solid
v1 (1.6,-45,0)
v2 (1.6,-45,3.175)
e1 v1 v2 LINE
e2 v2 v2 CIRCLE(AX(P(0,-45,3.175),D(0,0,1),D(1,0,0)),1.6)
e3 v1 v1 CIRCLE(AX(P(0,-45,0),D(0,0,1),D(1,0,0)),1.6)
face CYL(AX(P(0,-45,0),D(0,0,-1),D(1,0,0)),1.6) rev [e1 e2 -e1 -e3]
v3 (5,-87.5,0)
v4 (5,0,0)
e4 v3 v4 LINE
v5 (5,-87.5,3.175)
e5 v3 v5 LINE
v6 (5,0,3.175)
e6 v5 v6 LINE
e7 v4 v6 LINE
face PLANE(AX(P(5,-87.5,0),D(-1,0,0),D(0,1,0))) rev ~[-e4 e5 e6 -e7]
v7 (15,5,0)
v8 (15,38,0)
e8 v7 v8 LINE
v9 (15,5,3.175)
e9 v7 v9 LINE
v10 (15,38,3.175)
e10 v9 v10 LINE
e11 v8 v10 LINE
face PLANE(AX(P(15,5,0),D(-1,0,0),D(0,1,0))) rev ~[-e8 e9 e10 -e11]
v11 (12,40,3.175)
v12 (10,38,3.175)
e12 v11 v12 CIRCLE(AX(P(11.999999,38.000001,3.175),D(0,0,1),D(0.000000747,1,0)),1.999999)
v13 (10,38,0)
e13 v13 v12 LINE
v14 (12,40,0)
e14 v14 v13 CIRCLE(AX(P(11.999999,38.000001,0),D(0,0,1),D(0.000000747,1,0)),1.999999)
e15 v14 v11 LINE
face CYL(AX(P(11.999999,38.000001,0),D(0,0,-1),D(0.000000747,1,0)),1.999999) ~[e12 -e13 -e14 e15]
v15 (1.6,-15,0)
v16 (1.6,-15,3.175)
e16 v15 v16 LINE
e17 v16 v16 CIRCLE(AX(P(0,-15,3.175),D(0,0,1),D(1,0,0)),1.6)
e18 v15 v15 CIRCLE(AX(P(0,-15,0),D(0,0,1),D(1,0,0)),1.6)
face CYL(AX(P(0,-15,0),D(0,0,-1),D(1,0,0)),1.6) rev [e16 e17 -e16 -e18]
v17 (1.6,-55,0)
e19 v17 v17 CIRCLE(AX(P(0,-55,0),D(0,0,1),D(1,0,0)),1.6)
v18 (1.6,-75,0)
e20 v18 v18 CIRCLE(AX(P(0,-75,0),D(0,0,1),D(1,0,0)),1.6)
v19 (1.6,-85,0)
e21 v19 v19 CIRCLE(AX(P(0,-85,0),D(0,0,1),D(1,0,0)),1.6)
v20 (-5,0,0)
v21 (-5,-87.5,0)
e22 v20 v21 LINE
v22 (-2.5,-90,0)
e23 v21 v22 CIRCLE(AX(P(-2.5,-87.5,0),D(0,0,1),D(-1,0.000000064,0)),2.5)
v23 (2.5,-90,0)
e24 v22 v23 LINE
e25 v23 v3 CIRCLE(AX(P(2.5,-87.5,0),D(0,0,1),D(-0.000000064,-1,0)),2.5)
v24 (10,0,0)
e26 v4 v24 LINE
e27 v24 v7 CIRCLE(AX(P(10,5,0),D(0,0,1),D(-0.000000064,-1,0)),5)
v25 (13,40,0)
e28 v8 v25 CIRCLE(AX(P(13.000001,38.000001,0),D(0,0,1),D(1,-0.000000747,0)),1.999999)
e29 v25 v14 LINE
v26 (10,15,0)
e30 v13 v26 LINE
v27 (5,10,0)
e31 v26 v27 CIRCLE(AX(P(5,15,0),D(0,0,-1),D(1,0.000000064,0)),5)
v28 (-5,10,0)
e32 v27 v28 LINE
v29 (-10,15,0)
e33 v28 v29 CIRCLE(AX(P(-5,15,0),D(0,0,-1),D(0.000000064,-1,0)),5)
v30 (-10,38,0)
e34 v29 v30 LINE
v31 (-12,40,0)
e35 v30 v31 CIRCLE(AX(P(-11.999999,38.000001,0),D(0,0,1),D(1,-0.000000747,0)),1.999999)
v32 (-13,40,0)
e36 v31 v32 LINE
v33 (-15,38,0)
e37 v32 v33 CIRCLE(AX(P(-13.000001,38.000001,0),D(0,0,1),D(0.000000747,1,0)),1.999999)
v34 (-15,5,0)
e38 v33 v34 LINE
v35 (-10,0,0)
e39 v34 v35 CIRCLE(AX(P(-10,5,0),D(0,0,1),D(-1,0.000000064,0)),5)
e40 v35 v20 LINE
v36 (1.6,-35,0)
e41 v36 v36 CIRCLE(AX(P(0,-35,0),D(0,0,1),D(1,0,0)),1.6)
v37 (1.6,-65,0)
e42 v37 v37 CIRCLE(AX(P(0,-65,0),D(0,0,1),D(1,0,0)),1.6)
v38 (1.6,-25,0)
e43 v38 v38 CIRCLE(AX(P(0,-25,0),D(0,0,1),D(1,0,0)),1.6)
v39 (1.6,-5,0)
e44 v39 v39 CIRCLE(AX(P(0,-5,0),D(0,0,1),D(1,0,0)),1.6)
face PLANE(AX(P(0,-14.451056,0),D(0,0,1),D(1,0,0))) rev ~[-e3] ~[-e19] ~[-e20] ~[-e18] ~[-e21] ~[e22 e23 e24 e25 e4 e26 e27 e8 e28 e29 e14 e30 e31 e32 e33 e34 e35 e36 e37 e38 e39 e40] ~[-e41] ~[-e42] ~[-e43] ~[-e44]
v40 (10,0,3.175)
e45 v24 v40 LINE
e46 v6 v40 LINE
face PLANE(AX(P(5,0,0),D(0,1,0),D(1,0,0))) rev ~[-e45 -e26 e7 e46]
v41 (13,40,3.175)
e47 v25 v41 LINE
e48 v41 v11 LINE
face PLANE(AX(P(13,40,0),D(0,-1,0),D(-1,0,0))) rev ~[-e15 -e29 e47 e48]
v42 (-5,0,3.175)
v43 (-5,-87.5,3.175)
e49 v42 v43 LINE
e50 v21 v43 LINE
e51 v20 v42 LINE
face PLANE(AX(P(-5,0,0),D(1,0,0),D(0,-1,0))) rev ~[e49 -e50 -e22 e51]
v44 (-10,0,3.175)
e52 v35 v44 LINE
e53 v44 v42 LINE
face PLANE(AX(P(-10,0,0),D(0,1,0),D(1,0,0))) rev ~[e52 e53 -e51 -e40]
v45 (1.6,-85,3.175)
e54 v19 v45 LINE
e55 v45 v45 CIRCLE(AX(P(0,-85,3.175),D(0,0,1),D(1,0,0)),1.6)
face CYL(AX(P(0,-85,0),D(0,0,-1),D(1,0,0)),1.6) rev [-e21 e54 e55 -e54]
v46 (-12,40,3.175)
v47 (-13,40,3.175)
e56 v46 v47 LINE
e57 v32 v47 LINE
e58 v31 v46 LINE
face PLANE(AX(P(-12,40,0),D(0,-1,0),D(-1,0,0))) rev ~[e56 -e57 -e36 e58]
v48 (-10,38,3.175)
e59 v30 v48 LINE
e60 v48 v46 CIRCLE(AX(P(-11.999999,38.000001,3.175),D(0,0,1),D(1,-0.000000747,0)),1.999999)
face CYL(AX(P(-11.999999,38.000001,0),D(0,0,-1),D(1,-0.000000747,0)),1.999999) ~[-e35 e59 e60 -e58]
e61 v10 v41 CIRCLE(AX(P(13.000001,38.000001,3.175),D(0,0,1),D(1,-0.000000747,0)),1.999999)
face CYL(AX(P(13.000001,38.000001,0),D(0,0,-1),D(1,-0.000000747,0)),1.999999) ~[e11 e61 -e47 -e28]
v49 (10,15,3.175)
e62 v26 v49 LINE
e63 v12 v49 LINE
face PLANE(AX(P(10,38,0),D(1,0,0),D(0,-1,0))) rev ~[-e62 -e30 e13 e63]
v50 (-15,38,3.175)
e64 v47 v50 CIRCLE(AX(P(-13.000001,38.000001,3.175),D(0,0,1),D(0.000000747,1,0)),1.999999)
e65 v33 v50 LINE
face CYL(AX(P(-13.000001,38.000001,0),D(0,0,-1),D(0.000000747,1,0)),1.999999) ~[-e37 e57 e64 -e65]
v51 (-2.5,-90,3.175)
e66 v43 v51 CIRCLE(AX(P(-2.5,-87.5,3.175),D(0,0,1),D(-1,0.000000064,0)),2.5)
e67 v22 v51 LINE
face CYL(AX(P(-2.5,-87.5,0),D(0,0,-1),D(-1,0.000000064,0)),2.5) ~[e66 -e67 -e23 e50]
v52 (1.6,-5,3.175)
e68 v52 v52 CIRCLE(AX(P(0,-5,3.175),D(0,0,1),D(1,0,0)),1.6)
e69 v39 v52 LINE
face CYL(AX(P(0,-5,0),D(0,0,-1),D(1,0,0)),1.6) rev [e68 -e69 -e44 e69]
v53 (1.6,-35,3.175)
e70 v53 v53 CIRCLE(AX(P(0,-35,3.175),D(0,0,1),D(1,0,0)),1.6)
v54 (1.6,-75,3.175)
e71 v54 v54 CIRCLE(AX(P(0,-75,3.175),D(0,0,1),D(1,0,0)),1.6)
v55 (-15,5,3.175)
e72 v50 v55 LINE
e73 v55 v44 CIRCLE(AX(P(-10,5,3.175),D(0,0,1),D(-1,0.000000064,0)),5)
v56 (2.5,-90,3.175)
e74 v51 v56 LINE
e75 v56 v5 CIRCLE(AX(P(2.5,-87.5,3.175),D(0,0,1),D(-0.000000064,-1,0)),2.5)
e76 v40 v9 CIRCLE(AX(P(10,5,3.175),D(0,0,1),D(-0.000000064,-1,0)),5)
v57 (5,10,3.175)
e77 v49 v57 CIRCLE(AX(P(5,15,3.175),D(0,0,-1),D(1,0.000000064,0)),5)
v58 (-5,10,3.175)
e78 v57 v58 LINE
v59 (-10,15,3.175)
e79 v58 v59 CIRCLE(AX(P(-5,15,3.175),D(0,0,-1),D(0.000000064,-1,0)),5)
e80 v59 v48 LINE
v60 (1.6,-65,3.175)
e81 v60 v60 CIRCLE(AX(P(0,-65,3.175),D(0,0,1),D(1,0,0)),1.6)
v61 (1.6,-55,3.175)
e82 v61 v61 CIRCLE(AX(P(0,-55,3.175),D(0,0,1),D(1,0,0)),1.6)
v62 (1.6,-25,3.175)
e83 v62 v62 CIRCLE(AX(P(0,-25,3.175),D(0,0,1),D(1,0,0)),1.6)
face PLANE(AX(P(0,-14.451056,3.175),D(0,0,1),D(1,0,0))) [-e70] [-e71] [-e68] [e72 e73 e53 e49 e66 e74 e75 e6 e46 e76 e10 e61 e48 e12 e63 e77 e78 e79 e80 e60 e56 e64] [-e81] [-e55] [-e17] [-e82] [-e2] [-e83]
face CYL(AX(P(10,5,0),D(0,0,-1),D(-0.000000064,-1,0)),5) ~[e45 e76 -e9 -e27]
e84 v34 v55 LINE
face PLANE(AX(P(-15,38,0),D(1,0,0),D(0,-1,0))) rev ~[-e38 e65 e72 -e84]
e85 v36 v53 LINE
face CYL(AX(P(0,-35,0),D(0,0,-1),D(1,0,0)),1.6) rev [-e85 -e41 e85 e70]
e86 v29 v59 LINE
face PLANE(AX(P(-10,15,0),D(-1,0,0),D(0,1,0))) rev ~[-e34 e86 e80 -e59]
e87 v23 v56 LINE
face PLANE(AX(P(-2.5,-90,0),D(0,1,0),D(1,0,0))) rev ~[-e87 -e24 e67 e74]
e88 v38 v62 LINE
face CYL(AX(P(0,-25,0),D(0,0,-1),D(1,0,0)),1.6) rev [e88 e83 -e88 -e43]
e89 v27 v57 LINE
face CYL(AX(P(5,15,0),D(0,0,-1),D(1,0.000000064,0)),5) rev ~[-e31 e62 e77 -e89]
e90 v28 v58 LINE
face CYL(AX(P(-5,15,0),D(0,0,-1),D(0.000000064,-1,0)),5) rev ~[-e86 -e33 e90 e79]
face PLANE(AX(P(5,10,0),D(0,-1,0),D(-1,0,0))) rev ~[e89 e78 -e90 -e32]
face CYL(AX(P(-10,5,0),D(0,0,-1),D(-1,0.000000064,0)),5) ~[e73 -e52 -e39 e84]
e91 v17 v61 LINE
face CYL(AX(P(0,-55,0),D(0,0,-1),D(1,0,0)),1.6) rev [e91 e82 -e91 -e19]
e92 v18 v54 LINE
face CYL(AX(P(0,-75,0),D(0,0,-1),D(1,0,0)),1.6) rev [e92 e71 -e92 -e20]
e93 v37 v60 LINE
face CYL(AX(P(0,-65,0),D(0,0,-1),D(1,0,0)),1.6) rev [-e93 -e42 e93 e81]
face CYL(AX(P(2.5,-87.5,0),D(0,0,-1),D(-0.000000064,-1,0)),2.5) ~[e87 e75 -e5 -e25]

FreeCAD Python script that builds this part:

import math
import FreeCAD as App
import Part
import Sketcher
from FreeCAD import Vector

doc = App.newDocument("Part")
params = doc.addObject("Spreadsheet::Sheet", "Params")
for row, (alias, value) in enumerate([
    ("sketch1_radius", "5 mm"),
    ("sketch1_radius2", "1.999999 mm"),
    ("sketch1_diameter", "3.2 mm"),
    ("sketch1_radius3", "2.5 mm"),
    ("sketch1_height", "33 mm"),
    ("pad1_length", "3.175 mm"),
], start=1):
    params.set(f"A{row}", alias)
    params.set(f"B{row}", "=" + value)
    params.setAlias(f"B{row}", alias)

body = doc.addObject("PartDesign::Body", "Body")

# Sketch on XY plane
sketch1 = doc.addObject("Sketcher::SketchObject", "Sketch")
body.addObject(sketch1)
sketch1.AttachmentSupport = (doc.XY_Plane, [""])
sketch1.MapMode = "FlatFace"
sketch1.addGeometry([
    Part.ArcOfCircle(Part.Circle(Vector(-10, 5, 0), Vector(0, 0, 1), 5), math.radians(180), math.radians(270)),  # 0
    Part.LineSegment(Vector(-10, 0, 0), Vector(-5, 0, 0)),  # 1
    Part.LineSegment(Vector(-5, 0, 0), Vector(-5, -87.5, 0)),  # 2
    Part.ArcOfCircle(Part.Circle(Vector(-2.5, -87.5, 0), Vector(0, 0, 1), 2.5), math.radians(180), math.radians(270)),  # 3
    Part.LineSegment(Vector(-2.5, -90, 0), Vector(2.5, -90, 0)),  # 4
    Part.ArcOfCircle(Part.Circle(Vector(2.5, -87.5, 0), Vector(0, 0, 1), 2.5), math.radians(-90), math.radians(0)),  # 5
    Part.LineSegment(Vector(5, -87.5, 0), Vector(5, 0, 0)),  # 6
    Part.LineSegment(Vector(5, 0, 0), Vector(10, 0, 0)),  # 7
    Part.ArcOfCircle(Part.Circle(Vector(10, 5, 0), Vector(0, 0, 1), 5), math.radians(-90), math.radians(0)),  # 8
    Part.LineSegment(Vector(15, 5, 0), Vector(15, 38, 0)),  # 9
    Part.ArcOfCircle(Part.Circle(Vector(13, 38, 0), Vector(0, 0, 1), 2), math.radians(0), math.radians(90)),  # 10
    Part.LineSegment(Vector(13, 40, 0), Vector(12, 40, 0)),  # 11
    Part.ArcOfCircle(Part.Circle(Vector(12, 38, 0), Vector(0, 0, 1), 2), math.radians(90), math.radians(180)),  # 12
    Part.LineSegment(Vector(10, 38, 0), Vector(10, 15, 0)),  # 13
    Part.ArcOfCircle(Part.Circle(Vector(5, 15, 0), Vector(0, 0, 1), 5), math.radians(-90), math.radians(0)),  # 14
    Part.LineSegment(Vector(5, 10, 0), Vector(-5, 10, 0)),  # 15
    Part.ArcOfCircle(Part.Circle(Vector(-5, 15, 0), Vector(0, 0, 1), 5), math.radians(180), math.radians(270)),  # 16
    Part.LineSegment(Vector(-10, 15, 0), Vector(-10, 38, 0)),  # 17
    Part.ArcOfCircle(Part.Circle(Vector(-12, 38, 0), Vector(0, 0, 1), 2), math.radians(0), math.radians(90)),  # 18
    Part.LineSegment(Vector(-12, 40, 0), Vector(-13, 40, 0)),  # 19
    Part.ArcOfCircle(Part.Circle(Vector(-13, 38, 0), Vector(0, 0, 1), 2), math.radians(90), math.radians(180)),  # 20
    Part.LineSegment(Vector(-15, 38, 0), Vector(-15, 5, 0)),  # 21
    Part.Circle(Vector(0, -85, 0), Vector(0, 0, 1), 1.6),  # 22
    Part.Circle(Vector(0, -75, 0), Vector(0, 0, 1), 1.6),  # 23
    Part.Circle(Vector(0, -65, 0), Vector(0, 0, 1), 1.6),  # 24
    Part.Circle(Vector(0, -55, 0), Vector(0, 0, 1), 1.6),  # 25
    Part.Circle(Vector(0, -45, 0), Vector(0, 0, 1), 1.6),  # 26
    Part.Circle(Vector(0, -35, 0), Vector(0, 0, 1), 1.6),  # 27
    Part.Circle(Vector(0, -25, 0), Vector(0, 0, 1), 1.6),  # 28
    Part.Circle(Vector(0, -15, 0), Vector(0, 0, 1), 1.6),  # 29
    Part.Circle(Vector(0, -5, 0), Vector(0, 0, 1), 1.6),  # 30
], False)
sketch1.addConstraint([
    Sketcher.Constraint("Tangent", 0, 2, 1, 1),
    Sketcher.Constraint("Coincident", 1, 2, 2, 1),
    Sketcher.Constraint("Tangent", 2, 2, 3, 1),
    Sketcher.Constraint("Tangent", 3, 2, 4, 1),
    Sketcher.Constraint("Tangent", 4, 2, 5, 1),
    Sketcher.Constraint("Tangent", 5, 2, 6, 1),
    Sketcher.Constraint("Coincident", 6, 2, 7, 1),
    Sketcher.Constraint("Tangent", 7, 2, 8, 1),
    Sketcher.Constraint("Tangent", 8, 2, 9, 1),
    Sketcher.Constraint("Tangent", 9, 2, 10, 1),
    Sketcher.Constraint("Tangent", 10, 2, 11, 1),
    Sketcher.Constraint("Tangent", 11, 2, 12, 1),
    Sketcher.Constraint("Tangent", 12, 2, 13, 1),
    Sketcher.Constraint("Tangent", 13, 2, 14, 2),
    Sketcher.Constraint("Tangent", 14, 1, 15, 1),
    Sketcher.Constraint("Tangent", 15, 2, 16, 2),
    Sketcher.Constraint("Tangent", 16, 1, 17, 1),
    Sketcher.Constraint("Tangent", 17, 2, 18, 1),
    Sketcher.Constraint("Tangent", 18, 2, 19, 1),
    Sketcher.Constraint("Tangent", 19, 2, 20, 1),
    Sketcher.Constraint("Tangent", 20, 2, 21, 1),
    Sketcher.Constraint("Tangent", 21, 2, 0, 1),
    Sketcher.Constraint("Horizontal", 1),
    Sketcher.Constraint("Vertical", 2),
    Sketcher.Constraint("Horizontal", 4),
    Sketcher.Constraint("Vertical", 6),
    Sketcher.Constraint("Horizontal", 7),
    Sketcher.Constraint("Vertical", 9),
    Sketcher.Constraint("Horizontal", 11),
    Sketcher.Constraint("Vertical", 13),
    Sketcher.Constraint("Horizontal", 15),
    Sketcher.Constraint("Vertical", 17),
    Sketcher.Constraint("Horizontal", 19),
    Sketcher.Constraint("Vertical", 21),
    Sketcher.Constraint("Equal", 3, 5),
    Sketcher.Constraint("Equal", 0, 8),
    Sketcher.Constraint("Equal", 10, 12),
    Sketcher.Constraint("Equal", 8, 14),
    Sketcher.Constraint("Equal", 14, 16),
    Sketcher.Constraint("Equal", 12, 18),
    Sketcher.Constraint("Equal", 18, 20),
    Sketcher.Constraint("Equal", 22, 23),
    Sketcher.Constraint("Equal", 23, 24),
    Sketcher.Constraint("Equal", 24, 25),
    Sketcher.Constraint("Equal", 25, 26),
    Sketcher.Constraint("Equal", 26, 27),
    Sketcher.Constraint("Equal", 27, 28),
    Sketcher.Constraint("Equal", 28, 29),
    Sketcher.Constraint("Equal", 29, 30),
    Sketcher.Constraint("Symmetric", 1, 2, 6, 2, -1, 1),
    Sketcher.Constraint("Symmetric", 0, 3, 8, 3, -2),
    Sketcher.Constraint("Symmetric", 12, 3, 18, 3, -2),
    Sketcher.Constraint("PointOnObject", 22, 3, -2),
    Sketcher.Constraint("PointOnObject", 23, 3, -2),
    Sketcher.Constraint("PointOnObject", 24, 3, -2),
    Sketcher.Constraint("PointOnObject", 25, 3, -2),
    Sketcher.Constraint("PointOnObject", 26, 3, -2),
    Sketcher.Constraint("PointOnObject", 27, 3, -2),
    Sketcher.Constraint("PointOnObject", 28, 3, -2),
    Sketcher.Constraint("PointOnObject", 29, 3, -2),
    Sketcher.Constraint("PointOnObject", 30, 3, -2),
    Sketcher.Constraint("Vertical", 16, 3, 1, 2),
    Sketcher.Constraint("Vertical", 7, 2, 12, 2),
    Sketcher.Constraint("Equal", 1, 4),
    Sketcher.Constraint("Radius", 0, 5.0),
    Sketcher.Constraint("Radius", 10, 1.999999),
    Sketcher.Constraint("Diameter", 22, 3.2),
    Sketcher.Constraint("Radius", 3, 2.5),
    Sketcher.Constraint("DistanceY", 9, 1, 9, 2, 33.0),
    Sketcher.Constraint("DistanceY", 13, 2, 13, 1, 23.0),
    Sketcher.Constraint("DistanceY", 2, 2, 2, 1, 87.5),
    Sketcher.Constraint("DistanceY", 22, 3, -1, 1, 85.0),
    Sketcher.Constraint("DistanceY", 23, 3, -1, 1, 75.0),
    Sketcher.Constraint("DistanceY", 24, 3, -1, 1, 65.0),
    Sketcher.Constraint("DistanceY", 25, 3, -1, 1, 55.0),
    Sketcher.Constraint("DistanceY", 26, 3, -1, 1, 45.0),
    Sketcher.Constraint("DistanceY", 27, 3, -1, 1, 35.0),
    Sketcher.Constraint("DistanceY", 28, 3, -1, 1, 25.0),
    Sketcher.Constraint("DistanceY", 29, 3, -1, 1, 15.0),
    Sketcher.Constraint("DistanceY", 30, 3, -1, 1, 5.0),
])
sketch1.setExpression("Constraints[64]", "Params.sketch1_radius")
sketch1.setExpression("Constraints[65]", "Params.sketch1_radius2")
sketch1.setExpression("Constraints[66]", "Params.sketch1_diameter")
sketch1.setExpression("Constraints[67]", "Params.sketch1_radius3")
sketch1.setExpression("Constraints[68]", "Params.sketch1_height")
pad1 = doc.addObject("PartDesign::Pad", "Pad")
body.addObject(pad1)
pad1.Profile = sketch1
pad1.setExpression("Length", "Params.pad1_length")

doc.recompute()
